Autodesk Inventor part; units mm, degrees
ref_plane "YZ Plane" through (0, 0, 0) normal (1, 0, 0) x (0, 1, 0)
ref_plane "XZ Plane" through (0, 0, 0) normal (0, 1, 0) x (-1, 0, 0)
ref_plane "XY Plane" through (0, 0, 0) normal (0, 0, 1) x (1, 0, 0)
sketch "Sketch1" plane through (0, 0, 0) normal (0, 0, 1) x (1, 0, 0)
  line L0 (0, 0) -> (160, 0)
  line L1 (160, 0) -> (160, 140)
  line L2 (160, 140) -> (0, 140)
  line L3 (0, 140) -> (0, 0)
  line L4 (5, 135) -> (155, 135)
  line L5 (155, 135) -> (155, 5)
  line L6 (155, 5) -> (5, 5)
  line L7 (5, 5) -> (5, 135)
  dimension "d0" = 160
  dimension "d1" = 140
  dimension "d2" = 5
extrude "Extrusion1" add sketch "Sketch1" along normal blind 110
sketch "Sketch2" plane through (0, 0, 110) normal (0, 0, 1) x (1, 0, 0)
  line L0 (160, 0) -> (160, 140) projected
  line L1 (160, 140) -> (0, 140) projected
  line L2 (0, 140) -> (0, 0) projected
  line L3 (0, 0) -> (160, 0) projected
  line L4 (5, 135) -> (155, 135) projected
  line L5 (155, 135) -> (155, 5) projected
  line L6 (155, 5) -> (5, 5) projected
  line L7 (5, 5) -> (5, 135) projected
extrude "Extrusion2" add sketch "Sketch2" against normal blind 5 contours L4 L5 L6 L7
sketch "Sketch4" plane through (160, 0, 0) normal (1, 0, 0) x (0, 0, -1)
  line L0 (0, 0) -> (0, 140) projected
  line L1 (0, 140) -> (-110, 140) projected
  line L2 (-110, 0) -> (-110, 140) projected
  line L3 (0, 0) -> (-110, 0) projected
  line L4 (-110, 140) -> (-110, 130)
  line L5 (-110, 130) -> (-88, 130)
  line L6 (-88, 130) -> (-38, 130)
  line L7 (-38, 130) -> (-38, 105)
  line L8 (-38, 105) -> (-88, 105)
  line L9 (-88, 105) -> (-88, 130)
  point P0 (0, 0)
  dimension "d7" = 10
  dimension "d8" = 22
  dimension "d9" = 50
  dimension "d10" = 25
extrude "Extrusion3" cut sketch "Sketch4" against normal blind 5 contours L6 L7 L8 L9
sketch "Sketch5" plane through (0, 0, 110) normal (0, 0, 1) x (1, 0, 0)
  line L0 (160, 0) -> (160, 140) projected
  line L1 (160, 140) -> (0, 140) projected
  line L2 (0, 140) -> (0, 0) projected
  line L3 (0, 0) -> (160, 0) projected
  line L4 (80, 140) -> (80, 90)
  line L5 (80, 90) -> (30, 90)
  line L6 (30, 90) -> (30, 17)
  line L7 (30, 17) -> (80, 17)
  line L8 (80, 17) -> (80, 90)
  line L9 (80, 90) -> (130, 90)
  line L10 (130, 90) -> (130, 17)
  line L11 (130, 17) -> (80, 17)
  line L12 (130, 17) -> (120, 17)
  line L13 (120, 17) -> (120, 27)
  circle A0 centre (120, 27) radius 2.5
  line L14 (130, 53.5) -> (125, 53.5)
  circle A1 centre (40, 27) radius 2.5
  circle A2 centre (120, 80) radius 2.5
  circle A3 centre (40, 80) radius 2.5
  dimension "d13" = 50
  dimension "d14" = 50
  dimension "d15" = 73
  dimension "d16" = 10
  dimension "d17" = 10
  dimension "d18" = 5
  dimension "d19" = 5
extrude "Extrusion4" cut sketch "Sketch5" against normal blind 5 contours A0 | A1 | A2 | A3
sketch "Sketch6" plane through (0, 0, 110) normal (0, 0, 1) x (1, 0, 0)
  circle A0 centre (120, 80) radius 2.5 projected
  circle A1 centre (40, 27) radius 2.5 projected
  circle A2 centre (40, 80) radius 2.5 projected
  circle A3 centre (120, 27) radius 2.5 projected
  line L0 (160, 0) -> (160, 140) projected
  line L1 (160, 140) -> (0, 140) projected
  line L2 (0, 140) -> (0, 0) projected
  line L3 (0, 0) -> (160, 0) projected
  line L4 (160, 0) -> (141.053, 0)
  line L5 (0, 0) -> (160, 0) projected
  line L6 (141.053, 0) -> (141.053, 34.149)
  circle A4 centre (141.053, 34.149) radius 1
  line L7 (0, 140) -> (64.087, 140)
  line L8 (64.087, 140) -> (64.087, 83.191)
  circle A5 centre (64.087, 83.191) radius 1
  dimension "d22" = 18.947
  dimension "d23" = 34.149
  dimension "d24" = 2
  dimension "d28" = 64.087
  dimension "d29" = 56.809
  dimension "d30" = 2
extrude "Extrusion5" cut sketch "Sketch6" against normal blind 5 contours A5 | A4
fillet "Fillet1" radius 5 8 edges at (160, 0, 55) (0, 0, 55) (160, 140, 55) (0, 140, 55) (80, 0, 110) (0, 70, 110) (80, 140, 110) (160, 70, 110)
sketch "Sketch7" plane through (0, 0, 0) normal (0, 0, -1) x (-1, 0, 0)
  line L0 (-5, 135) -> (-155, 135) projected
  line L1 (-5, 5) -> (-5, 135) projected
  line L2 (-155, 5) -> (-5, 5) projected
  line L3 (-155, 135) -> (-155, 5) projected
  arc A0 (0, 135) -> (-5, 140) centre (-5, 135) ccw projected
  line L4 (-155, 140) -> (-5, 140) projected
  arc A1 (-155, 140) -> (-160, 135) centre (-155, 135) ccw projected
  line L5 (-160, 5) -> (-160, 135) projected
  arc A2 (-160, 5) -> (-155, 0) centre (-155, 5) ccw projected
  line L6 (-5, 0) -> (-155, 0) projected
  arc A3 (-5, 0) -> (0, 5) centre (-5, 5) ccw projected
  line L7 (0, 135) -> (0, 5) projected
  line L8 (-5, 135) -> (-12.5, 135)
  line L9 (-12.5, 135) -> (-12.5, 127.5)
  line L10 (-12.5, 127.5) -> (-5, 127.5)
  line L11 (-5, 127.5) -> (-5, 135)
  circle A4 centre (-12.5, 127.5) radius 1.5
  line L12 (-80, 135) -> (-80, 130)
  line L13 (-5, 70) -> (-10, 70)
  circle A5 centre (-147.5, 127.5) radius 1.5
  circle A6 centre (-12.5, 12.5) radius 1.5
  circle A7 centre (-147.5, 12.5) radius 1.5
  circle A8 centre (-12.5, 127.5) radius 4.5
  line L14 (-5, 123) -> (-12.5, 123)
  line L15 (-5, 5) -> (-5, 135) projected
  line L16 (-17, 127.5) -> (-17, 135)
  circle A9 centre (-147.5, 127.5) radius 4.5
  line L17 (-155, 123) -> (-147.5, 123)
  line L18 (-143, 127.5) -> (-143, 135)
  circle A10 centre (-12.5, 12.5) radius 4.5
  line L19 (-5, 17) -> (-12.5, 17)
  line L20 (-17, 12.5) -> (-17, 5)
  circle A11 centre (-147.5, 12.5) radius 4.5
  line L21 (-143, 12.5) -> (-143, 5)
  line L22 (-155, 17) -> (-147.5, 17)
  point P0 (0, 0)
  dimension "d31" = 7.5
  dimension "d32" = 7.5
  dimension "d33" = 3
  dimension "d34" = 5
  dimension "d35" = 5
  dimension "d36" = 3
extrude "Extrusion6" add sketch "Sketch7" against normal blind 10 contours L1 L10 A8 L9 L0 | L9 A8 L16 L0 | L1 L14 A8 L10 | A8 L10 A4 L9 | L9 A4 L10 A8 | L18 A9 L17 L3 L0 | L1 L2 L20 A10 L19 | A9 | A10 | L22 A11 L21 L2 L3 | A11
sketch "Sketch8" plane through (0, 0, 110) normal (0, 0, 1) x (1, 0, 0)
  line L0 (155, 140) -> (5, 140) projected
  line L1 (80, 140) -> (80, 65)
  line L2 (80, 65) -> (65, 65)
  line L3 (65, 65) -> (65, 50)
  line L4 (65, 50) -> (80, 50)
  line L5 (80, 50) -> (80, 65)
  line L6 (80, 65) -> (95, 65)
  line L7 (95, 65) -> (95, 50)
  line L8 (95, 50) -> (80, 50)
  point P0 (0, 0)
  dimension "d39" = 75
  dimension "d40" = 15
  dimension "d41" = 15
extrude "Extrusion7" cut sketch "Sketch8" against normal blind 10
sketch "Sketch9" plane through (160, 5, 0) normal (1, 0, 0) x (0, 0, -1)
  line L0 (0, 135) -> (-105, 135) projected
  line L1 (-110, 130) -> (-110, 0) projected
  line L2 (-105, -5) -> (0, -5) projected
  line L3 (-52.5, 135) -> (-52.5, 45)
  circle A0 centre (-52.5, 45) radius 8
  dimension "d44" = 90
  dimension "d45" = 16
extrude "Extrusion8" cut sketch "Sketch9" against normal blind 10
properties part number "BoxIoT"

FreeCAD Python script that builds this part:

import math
import FreeCAD as App
import Part
import Sketcher
from FreeCAD import Vector


def edges_at(feature, points):
    """Names of the edges that pass closest to the given points."""
    edges = feature.Shape.Edges
    near = lambda p: min(range(len(edges)), key=lambda i: edges[i].distToShape(Part.Vertex(*p))[0])
    return sorted({f"Edge{near(p) + 1}" for p in points})

doc = App.newDocument("Part")
body = doc.addObject("PartDesign::Body", "Body")

# Sketch on XY plane
sketch1 = body.newObject("Sketcher::SketchObject", "Sketch")
sketch1.AttachmentSupport = (doc.getObject("XY_Plane"), [""])
sketch1.MapMode = "FlatFace"
sketch1.addGeometry([
    Part.LineSegment(Vector(0, 140, 0), Vector(0, 0, 0)),  # 0
    Part.LineSegment(Vector(0, 0, 0), Vector(160, 0, 0)),  # 1
    Part.LineSegment(Vector(160, 0, 0), Vector(160, 140, 0)),  # 2
    Part.LineSegment(Vector(160, 140, 0), Vector(0, 140, 0)),  # 3
    Part.LineSegment(Vector(5, 5, 0), Vector(5, 135, 0)),  # 4
    Part.LineSegment(Vector(5, 135, 0), Vector(155, 135, 0)),  # 5
    Part.LineSegment(Vector(155, 135, 0), Vector(155, 5, 0)),  # 6
    Part.LineSegment(Vector(155, 5, 0), Vector(5, 5, 0)),  # 7
], False)
sketch1.addConstraint([
    Sketcher.Constraint("Coincident", 0, 2, 1, 1),
    Sketcher.Constraint("Coincident", 1, 2, 2, 1),
    Sketcher.Constraint("Coincident", 2, 2, 3, 1),
    Sketcher.Constraint("Coincident", 3, 2, 0, 1),
    Sketcher.Constraint("Coincident", 4, 2, 5, 1),
    Sketcher.Constraint("Coincident", 5, 2, 6, 1),
    Sketcher.Constraint("Coincident", 6, 2, 7, 1),
    Sketcher.Constraint("Coincident", 7, 2, 4, 1),
    Sketcher.Constraint("Vertical", 0),
    Sketcher.Constraint("Horizontal", 1),
    Sketcher.Constraint("Vertical", 2),
    Sketcher.Constraint("Horizontal", 3),
    Sketcher.Constraint("Vertical", 4),
    Sketcher.Constraint("Horizontal", 5),
    Sketcher.Constraint("Vertical", 6),
    Sketcher.Constraint("Horizontal", 7),
    Sketcher.Constraint("Coincident", 0, 2, -1, 1),
    Sketcher.Constraint("DistanceX", 1, 1, 1, 2, 160.0),
    Sketcher.Constraint("DistanceY", 0, 2, 0, 1, 140.0),
    Sketcher.Constraint("DistanceX", -1, 1, 4, 2, 5.0),
    Sketcher.Constraint("DistanceY", -1, 1, 6, 2, 5.0),
    Sketcher.Constraint("DistanceY", 4, 2, 3, 2, 5.0),
    Sketcher.Constraint("DistanceX", 5, 2, 2, 2, 5.0),
])
pad1 = body.newObject("PartDesign::Pad", "Pad")
pad1.Profile = sketch1
pad1.Length = 110

# Sketch on XY plane
sketch2 = body.newObject("Sketcher::SketchObject", "Sketch001")
sketch2.AttachmentSupport = (doc.getObject("XY_Plane"), [""])
sketch2.MapMode = "FlatFace"
sketch2.AttachmentOffset = App.Placement(Vector(0, 0, 110), App.Rotation())
sketch2.addGeometry([
    Part.LineSegment(Vector(155, 135, 0), Vector(5, 135, 0)),
    Part.LineSegment(Vector(5, 135, 0), Vector(5, 5, 0)),
    Part.LineSegment(Vector(5, 5, 0), Vector(155, 5, 0)),
    Part.LineSegment(Vector(155, 5, 0), Vector(155, 135, 0)),
], False)
sketch2.addConstraint([
    Sketcher.Constraint("Coincident", 0, 2, 1, 1),
    Sketcher.Constraint("Coincident", 1, 2, 2, 1),
    Sketcher.Constraint("Coincident", 2, 2, 3, 1),
    Sketcher.Constraint("Coincident", 3, 2, 0, 1),
    Sketcher.Constraint("Horizontal", 0),
    Sketcher.Constraint("Vertical", 1),
    Sketcher.Constraint("Horizontal", 2),
    Sketcher.Constraint("Vertical", 3),
    Sketcher.Constraint("DistanceX", 0, 2, 0, 1, 150.0),
    Sketcher.Constraint("DistanceY", 1, 2, 1, 1, 130.0),
    Sketcher.Constraint("DistanceX", -1, 1, 0, 2, 5.0),
    Sketcher.Constraint("DistanceY", -1, 1, 0, 2, 135.0),
])
pad2 = body.newObject("PartDesign::Pad", "Pad001")
pad2.Profile = sketch2
pad2.Length = 5
pad2.Reversed = True

# Sketch on YZ plane
sketch3 = body.newObject("Sketcher::SketchObject", "Sketch002")
sketch3.AttachmentSupport = (doc.getObject("YZ_Plane"), [""])
sketch3.MapMode = "FlatFace"
sketch3.AttachmentOffset = App.Placement(Vector(0, 0, 160), App.Rotation())
sketch3.addGeometry([
    Part.LineSegment(Vector(130, 38, 0), Vector(130, 88, 0)),
    Part.LineSegment(Vector(130, 88, 0), Vector(105, 88, 0)),
    Part.LineSegment(Vector(105, 88, 0), Vector(105, 38, 0)),
    Part.LineSegment(Vector(105, 38, 0), Vector(130, 38, 0)),
], False)
sketch3.addConstraint([
    Sketcher.Constraint("Coincident", 0, 2, 1, 1),
    Sketcher.Constraint("Coincident", 1, 2, 2, 1),
    Sketcher.Constraint("Coincident", 2, 2, 3, 1),
    Sketcher.Constraint("Coincident", 3, 2, 0, 1),
    Sketcher.Constraint("Vertical", 0),
    Sketcher.Constraint("Horizontal", 1),
    Sketcher.Constraint("Vertical", 2),
    Sketcher.Constraint("Horizontal", 3),
    Sketcher.Constraint("DistanceX", 1, 2, 1, 1, 25.0),
    Sketcher.Constraint("DistanceY", 0, 1, 0, 2, 50.0),
    Sketcher.Constraint("DistanceX", -1, 1, 0, 2, 130.0),
    Sketcher.Constraint("DistanceY", -1, 1, 0, 2, 88.0),
])
pocket1 = body.newObject("PartDesign::Pocket", "Pocket")
pocket1.Profile = sketch3
pocket1.Length = 5

# Sketch on XY plane
sketch4 = body.newObject("Sketcher::SketchObject", "Sketch003")
sketch4.AttachmentSupport = (doc.getObject("XY_Plane"), [""])
sketch4.MapMode = "FlatFace"
sketch4.AttachmentOffset = App.Placement(Vector(0, 0, 110), App.Rotation())
sketch4.addGeometry([
    Part.Circle(Vector(120, 27, 0), Vector(0, 0, 1), 2.5),
    Part.Circle(Vector(40, 27, 0), Vector(0, 0, 1), 2.5),
    Part.Circle(Vector(120, 80, 0), Vector(0, 0, 1), 2.5),
    Part.Circle(Vector(40, 80, 0), Vector(0, 0, 1), 2.5),
], False)
sketch4.addConstraint([
    Sketcher.Constraint("Equal", 0, 1),
    Sketcher.Constraint("Equal", 1, 2),
    Sketcher.Constraint("Equal", 2, 3),
    Sketcher.Constraint("Horizontal", 0, 3, 1, 3),
    Sketcher.Constraint("Horizontal", 2, 3, 3, 3),
    Sketcher.Constraint("Vertical", 0, 3, 2, 3),
    Sketcher.Constraint("Vertical", 1, 3, 3, 3),
    Sketcher.Constraint("Diameter", 0, 5.0),
    Sketcher.Constraint("DistanceX", -1, 1, 0, 3, 120.0),
    Sketcher.Constraint("DistanceY", -1, 1, 0, 3, 27.0),
    Sketcher.Constraint("DistanceX", -1, 1, 1, 3, 40.0),
    Sketcher.Constraint("DistanceY", -1, 1, 2, 3, 80.0),
])
pocket2 = body.newObject("PartDesign::Pocket", "Pocket001")
pocket2.Profile = sketch4
pocket2.Length = 5

# Sketch on XY plane
sketch5 = body.newObject("Sketcher::SketchObject", "Sketch004")
sketch5.AttachmentSupport = (doc.getObject("XY_Plane"), [""])
sketch5.MapMode = "FlatFace"
sketch5.AttachmentOffset = App.Placement(Vector(0, 0, 110), App.Rotation())
sketch5.addGeometry([
    Part.Circle(Vector(64.087, 83.191, 0), Vector(0, 0, 1), 1),
    Part.Circle(Vector(141.053, 34.149, 0), Vector(0, 0, 1), 1),
], False)
sketch5.addConstraint([
    Sketcher.Constraint("Equal", 0, 1),
    Sketcher.Constraint("Diameter", 0, 2.0),
    Sketcher.Constraint("DistanceX", -1, 1, 0, 3, 64.087),
    Sketcher.Constraint("DistanceY", -1, 1, 1, 3, 34.149),
    Sketcher.Constraint("DistanceY", -1, 1, 0, 3, 83.191),
    Sketcher.Constraint("DistanceX", -1, 1, 1, 3, 141.053),
])
pocket3 = body.newObject("PartDesign::Pocket", "Pocket002")
pocket3.Profile = sketch5
pocket3.Length = 5
doc.recompute()

fillet = body.newObject("PartDesign::Fillet", "Fillet")
fillet.Base = (pocket3, edges_at(pocket3, [
    (160, 0, 55),
    (0, 0, 55),
    (160, 140, 55),
    (0, 140, 55),
    (80, 0, 110),
    (0, 70, 110),
    (80, 140, 110),
    (160, 70, 110),
]))
fillet.Radius = 5

# Sketch on XY plane
sketch6 = body.newObject("Sketcher::SketchObject", "Sketch005")
sketch6.AttachmentSupport = (doc.getObject("XY_Plane"), [""])
sketch6.MapMode = "FlatFace"
sketch6.addGeometry([
    Part.LineSegment(Vector(5, 135, 0), Vector(17, 135, 0)),  # 0
    Part.LineSegment(Vector(17, 135, 0), Vector(17, 127.5, 0)),  # 1
    Part.ArcOfCircle(Part.Circle(Vector(12.5, 127.5, 0), Vector(0, 0, 1), 4.5), math.radians(-90), math.radians(0)),  # 2
    Part.LineSegment(Vector(12.5, 123, 0), Vector(5, 123, 0)),  # 3
    Part.LineSegment(Vector(5, 123, 0), Vector(5, 135, 0)),  # 4
    Part.Circle(Vector(12.5, 127.5, 0), Vector(0, 0, 1), 1.5),  # 5
    Part.LineSegment(Vector(143, 127.5, 0), Vector(143, 135, 0)),  # 6
    Part.LineSegment(Vector(143, 135, 0), Vector(155, 135, 0)),  # 7
    Part.LineSegment(Vector(155, 135, 0), Vector(155, 123, 0)),  # 8
    Part.LineSegment(Vector(155, 123, 0), Vector(147.5, 123, 0)),  # 9
    Part.ArcOfCircle(Part.Circle(Vector(147.5, 127.5, 0), Vector(0, 0, 1), 4.5), math.radians(180), math.radians(270)),  # 10
    Part.Circle(Vector(147.5, 127.5, 0), Vector(0, 0, 1), 1.5),  # 11
    Part.LineSegment(Vector(5, 5, 0), Vector(5, 17, 0)),  # 12
    Part.LineSegment(Vector(5, 17, 0), Vector(12.5, 17, 0)),  # 13
    Part.ArcOfCircle(Part.Circle(Vector(12.5, 12.5, 0), Vector(0, 0, 1), 4.5), math.radians(0), math.radians(90)),  # 14
    Part.LineSegment(Vector(17, 12.5, 0), Vector(17, 5, 0)),  # 15
    Part.LineSegment(Vector(17, 5, 0), Vector(5, 5, 0)),  # 16
    Part.Circle(Vector(12.5, 12.5, 0), Vector(0, 0, 1), 1.5),  # 17
    Part.LineSegment(Vector(147.5, 17, 0), Vector(155, 17, 0)),  # 18
    Part.LineSegment(Vector(155, 17, 0), Vector(155, 5, 0)),  # 19
    Part.LineSegment(Vector(155, 5, 0), Vector(143, 5, 0)),  # 20
    Part.LineSegment(Vector(143, 5, 0), Vector(143, 12.5, 0)),  # 21
    Part.ArcOfCircle(Part.Circle(Vector(147.5, 12.5, 0), Vector(0, 0, 1), 4.5), math.radians(90), math.radians(180)),  # 22
    Part.Circle(Vector(147.5, 12.5, 0), Vector(0, 0, 1), 1.5),  # 23
], False)
sketch6.addConstraint([
    Sketcher.Constraint("Coincident", 0, 2, 1, 1),
    Sketcher.Constraint("Tangent", 1, 2, 2, 2),
    Sketcher.Constraint("Tangent", 2, 1, 3, 1),
    Sketcher.Constraint("Coincident", 3, 2, 4, 1),
    Sketcher.Constraint("Coincident", 4, 2, 0, 1),
    Sketcher.Constraint("Coincident", 6, 2, 7, 1),
    Sketcher.Constraint("Coincident", 7, 2, 8, 1),
    Sketcher.Constraint("Coincident", 8, 2, 9, 1),
    Sketcher.Constraint("Tangent", 9, 2, 10, 2),
    Sketcher.Constraint("Tangent", 10, 1, 6, 1),
    Sketcher.Constraint("Coincident", 12, 2, 13, 1),
    Sketcher.Constraint("Tangent", 13, 2, 14, 2),
    Sketcher.Constraint("Tangent", 14, 1, 15, 1),
    Sketcher.Constraint("Coincident", 15, 2, 16, 1),
    Sketcher.Constraint("Coincident", 16, 2, 12, 1),
    Sketcher.Constraint("Coincident", 18, 2, 19, 1),
    Sketcher.Constraint("Coincident", 19, 2, 20, 1),
    Sketcher.Constraint("Coincident", 20, 2, 21, 1),
    Sketcher.Constraint("Tangent", 21, 2, 22, 2),
    Sketcher.Constraint("Tangent", 22, 1, 18, 1),
    Sketcher.Constraint("Horizontal", 0),
    Sketcher.Constraint("Vertical", 1),
    Sketcher.Constraint("Horizontal", 3),
    Sketcher.Constraint("Vertical", 4),
    Sketcher.Constraint("Vertical", 6),
    Sketcher.Constraint("Horizontal", 7),
    Sketcher.Constraint("Vertical", 8),
    Sketcher.Constraint("Horizontal", 9),
    Sketcher.Constraint("Vertical", 12),
    Sketcher.Constraint("Horizontal", 13),
    Sketcher.Constraint("Vertical", 15),
    Sketcher.Constraint("Horizontal", 16),
    Sketcher.Constraint("Horizontal", 18),
    Sketcher.Constraint("Vertical", 19),
    Sketcher.Constraint("Horizontal", 20),
    Sketcher.Constraint("Vertical", 21),
    Sketcher.Constraint("Coincident", 5, 3, 2, 3),
    Sketcher.Constraint("Coincident", 11, 3, 10, 3),
    Sketcher.Constraint("Coincident", 17, 3, 14, 3),
    Sketcher.Constraint("Coincident", 23, 3, 22, 3),
    Sketcher.Constraint("Equal", 2, 10),
    Sketcher.Constraint("Equal", 5, 11),
    Sketcher.Constraint("Equal", 10, 14),
    Sketcher.Constraint("Equal", 11, 17),
    Sketcher.Constraint("Equal", 14, 22),
    Sketcher.Constraint("Equal", 17, 23),
    Sketcher.Constraint("Horizontal", 5, 3, 10, 3),
    Sketcher.Constraint("Horizontal", 17, 3, 22, 3),
    Sketcher.Constraint("Horizontal", 4, 2, 6, 2),
    Sketcher.Constraint("Horizontal", 16, 2, 19, 2),
    Sketcher.Constraint("Vertical", 5, 3, 14, 3),
    Sketcher.Constraint("Vertical", 11, 3, 22, 3),
    Sketcher.Constraint("Vertical", 4, 2, 12, 2),
    Sketcher.Constraint("Vertical", 8, 2, 18, 2),
    Sketcher.Constraint("Equal", 0, 7),
    Sketcher.Constraint("Equal", 18, 1),
    Sketcher.Constraint("Equal", 8, 12),
    Sketcher.Constraint("Diameter", 5, 3.0),
    Sketcher.Constraint("DistanceX", 3, 2, 3, 1, 7.5),
    Sketcher.Constraint("DistanceX", -1, 1, 3, 2, 5.0),
    Sketcher.Constraint("DistanceY", -1, 1, 15, 2, 5.0),
    Sketcher.Constraint("Radius", 2, 4.5),
    Sketcher.Constraint("DistanceY", -1, 1, 0, 2, 135.0),
    Sketcher.Constraint("DistanceX", -1, 1, 6, 2, 143.0),
])
pad3 = body.newObject("PartDesign::Pad", "Pad002")
pad3.Profile = sketch6
pad3.Length = 10

# Sketch on XY plane
sketch7 = body.newObject("Sketcher::SketchObject", "Sketch006")
sketch7.AttachmentSupport = (doc.getObject("XY_Plane"), [""])
sketch7.MapMode = "FlatFace"
sketch7.AttachmentOffset = App.Placement(Vector(0, 0, 110), App.Rotation())
sketch7.addGeometry([
    Part.LineSegment(Vector(65, 50, 0), Vector(95, 50, 0)),
    Part.LineSegment(Vector(95, 50, 0), Vector(95, 65, 0)),
    Part.LineSegment(Vector(95, 65, 0), Vector(65, 65, 0)),
    Part.LineSegment(Vector(65, 65, 0), Vector(65, 50, 0)),
], False)
sketch7.addConstraint([
    Sketcher.Constraint("Coincident", 0, 2, 1, 1),
    Sketcher.Constraint("Coincident", 1, 2, 2, 1),
    Sketcher.Constraint("Coincident", 2, 2, 3, 1),
    Sketcher.Constraint("Coincident", 3, 2, 0, 1),
    Sketcher.Constraint("Horizontal", 0),
    Sketcher.Constraint("Vertical", 1),
    Sketcher.Constraint("Horizontal", 2),
    Sketcher.Constraint("Vertical", 3),
    Sketcher.Constraint("DistanceY", 1, 1, 1, 2, 15.0),
    Sketcher.Constraint("DistanceX", 0, 1, 0, 2, 30.0),
    Sketcher.Constraint("DistanceX", -1, 1, 0, 2, 95.0),
    Sketcher.Constraint("DistanceY", -1, 1, 0, 2, 50.0),
])
pocket4 = body.newObject("PartDesign::Pocket", "Pocket003")
pocket4.Profile = sketch7
pocket4.Length = 10

# Sketch on YZ plane
sketch8 = body.newObject("Sketcher::SketchObject", "Sketch007")
sketch8.AttachmentSupport = (doc.getObject("YZ_Plane"), [""])
sketch8.MapMode = "FlatFace"
sketch8.AttachmentOffset = App.Placement(Vector(0, 0, 160), App.Rotation())
sketch8.addGeometry(Part.Circle(Vector(50, 52.5, 0), Vector(0, 0, 1), 8), False)
sketch8.addConstraint([
    Sketcher.Constraint("Diameter", 0, 16.0),
    Sketcher.Constraint("DistanceX", -1, 1, 0, 3, 50.0),
    Sketcher.Constraint("DistanceY", -1, 1, 0, 3, 52.5),
])
pocket5 = body.newObject("PartDesign::Pocket", "Pocket004")
pocket5.Profile = sketch8
pocket5.Length = 10

doc.recompute()
